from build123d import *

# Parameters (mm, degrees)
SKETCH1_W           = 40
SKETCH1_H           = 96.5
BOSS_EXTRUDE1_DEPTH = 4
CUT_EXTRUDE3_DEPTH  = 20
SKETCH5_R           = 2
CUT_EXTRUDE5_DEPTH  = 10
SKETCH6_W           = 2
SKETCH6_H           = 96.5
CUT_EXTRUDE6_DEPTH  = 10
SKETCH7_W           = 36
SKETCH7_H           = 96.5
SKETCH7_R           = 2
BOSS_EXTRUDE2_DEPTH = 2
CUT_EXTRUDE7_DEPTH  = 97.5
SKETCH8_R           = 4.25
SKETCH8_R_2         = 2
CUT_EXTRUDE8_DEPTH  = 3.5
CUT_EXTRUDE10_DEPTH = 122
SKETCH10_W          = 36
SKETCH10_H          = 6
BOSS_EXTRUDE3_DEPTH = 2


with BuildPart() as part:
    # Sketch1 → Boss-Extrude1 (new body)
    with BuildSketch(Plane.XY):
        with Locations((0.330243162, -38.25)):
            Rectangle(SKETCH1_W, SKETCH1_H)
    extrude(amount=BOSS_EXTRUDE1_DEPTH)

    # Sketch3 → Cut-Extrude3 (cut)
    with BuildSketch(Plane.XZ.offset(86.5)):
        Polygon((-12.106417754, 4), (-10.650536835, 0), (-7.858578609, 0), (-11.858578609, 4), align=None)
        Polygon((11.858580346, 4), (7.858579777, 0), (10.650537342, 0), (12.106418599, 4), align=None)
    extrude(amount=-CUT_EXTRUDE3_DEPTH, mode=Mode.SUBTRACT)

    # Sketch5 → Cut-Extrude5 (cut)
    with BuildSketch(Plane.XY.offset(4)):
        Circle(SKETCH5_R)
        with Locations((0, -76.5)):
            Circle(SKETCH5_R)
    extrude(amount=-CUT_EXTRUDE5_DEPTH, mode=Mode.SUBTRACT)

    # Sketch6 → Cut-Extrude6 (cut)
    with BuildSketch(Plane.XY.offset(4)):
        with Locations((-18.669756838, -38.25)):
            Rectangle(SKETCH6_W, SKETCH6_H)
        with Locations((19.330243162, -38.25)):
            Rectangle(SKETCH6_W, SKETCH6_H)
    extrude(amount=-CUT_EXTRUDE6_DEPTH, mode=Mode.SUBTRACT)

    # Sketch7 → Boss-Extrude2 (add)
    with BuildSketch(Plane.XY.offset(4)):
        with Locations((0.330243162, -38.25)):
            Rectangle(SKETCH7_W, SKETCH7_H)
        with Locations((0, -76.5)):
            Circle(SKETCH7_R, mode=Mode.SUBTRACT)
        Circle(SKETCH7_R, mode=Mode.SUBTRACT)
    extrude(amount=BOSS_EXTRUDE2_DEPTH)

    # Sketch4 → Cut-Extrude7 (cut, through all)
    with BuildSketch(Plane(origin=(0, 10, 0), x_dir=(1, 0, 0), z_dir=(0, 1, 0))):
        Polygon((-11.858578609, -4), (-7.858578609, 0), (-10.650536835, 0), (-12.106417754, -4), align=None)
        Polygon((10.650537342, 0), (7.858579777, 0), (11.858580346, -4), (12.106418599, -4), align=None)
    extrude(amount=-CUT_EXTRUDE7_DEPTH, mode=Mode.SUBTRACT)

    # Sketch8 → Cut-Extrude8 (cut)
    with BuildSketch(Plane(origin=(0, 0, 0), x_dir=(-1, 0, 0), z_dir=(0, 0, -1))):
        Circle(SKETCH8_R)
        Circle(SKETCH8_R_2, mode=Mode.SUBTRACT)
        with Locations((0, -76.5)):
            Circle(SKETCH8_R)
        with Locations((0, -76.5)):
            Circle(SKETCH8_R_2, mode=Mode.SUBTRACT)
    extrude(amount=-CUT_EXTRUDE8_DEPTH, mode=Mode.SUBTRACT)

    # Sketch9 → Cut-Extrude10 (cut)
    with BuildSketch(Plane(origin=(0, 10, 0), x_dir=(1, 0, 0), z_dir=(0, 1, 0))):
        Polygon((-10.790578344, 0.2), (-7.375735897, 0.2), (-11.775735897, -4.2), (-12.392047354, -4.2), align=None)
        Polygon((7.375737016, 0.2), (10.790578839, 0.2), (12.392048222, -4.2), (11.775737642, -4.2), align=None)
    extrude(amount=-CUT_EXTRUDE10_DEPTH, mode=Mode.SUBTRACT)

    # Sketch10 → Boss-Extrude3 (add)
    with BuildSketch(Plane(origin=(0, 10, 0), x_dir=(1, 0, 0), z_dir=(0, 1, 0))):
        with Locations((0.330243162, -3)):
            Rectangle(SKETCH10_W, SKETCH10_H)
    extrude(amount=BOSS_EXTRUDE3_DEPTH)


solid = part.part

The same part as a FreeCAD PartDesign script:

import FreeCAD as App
import Part
import Sketcher

V = App.Vector
Q = App.Units.Quantity

doc = App.newDocument("Part")
body = doc.addObject("PartDesign::Body", "Body")

# Sketch on XY plane
sketch1 = doc.addObject("Sketcher::SketchObject", "Sketch")
body.addObject(sketch1)
sketch1.AttachmentSupport = (doc.XY_Plane, [""])
sketch1.MapMode = "FlatFace"
sketch1.addGeometry([
    Part.LineSegment(V(-19.669757, 10, 0), V(-19.669757, -86.5, 0)),
    Part.LineSegment(V(-19.669757, -86.5, 0), V(20.330243, -86.5, 0)),
    Part.LineSegment(V(20.330243, -86.5, 0), V(20.330243, 10, 0)),
    Part.LineSegment(V(20.330243, 10, 0), V(-19.669757, 10, 0)),
], False)
sketch1.addConstraint([
    Sketcher.Constraint("Coincident", 0, 2, 1, 1),
    Sketcher.Constraint("Coincident", 1, 2, 2, 1),
    Sketcher.Constraint("Coincident", 2, 2, 3, 1),
    Sketcher.Constraint("Coincident", 3, 2, 0, 1),
    Sketcher.Constraint("Vertical", 0),
    Sketcher.Constraint("Horizontal", 1),
    Sketcher.Constraint("Vertical", 2),
    Sketcher.Constraint("Horizontal", 3),
    Sketcher.Constraint("DistanceX", 1, 1, 1, 2, Q("40 mm")),
    Sketcher.Constraint("DistanceY", 0, 2, 0, 1, Q("96.5 mm")),
    Sketcher.Constraint("DistanceY", -1, 1, 2, 2, Q("10 mm")),
    Sketcher.Constraint("DistanceX", 0, 2, -1, 1, Q("19.669757 mm")),
])
pad1 = doc.addObject("PartDesign::Pad", "Pad")
body.addObject(pad1)
pad1.Profile = sketch1
pad1.Length = 4

# Sketch on XZ plane
sketch2 = doc.addObject("Sketcher::SketchObject", "Sketch001")
body.addObject(sketch2)
sketch2.AttachmentSupport = (doc.XZ_Plane, [""])
sketch2.MapMode = "FlatFace"
sketch2.AttachmentOffset = App.Placement(V(0, 0, 86.5), App.Rotation())
sketch2.addGeometry([
    Part.LineSegment(V(-12.106418, 4, 0), V(-10.650537, 0, 0)),  # 0
    Part.LineSegment(V(-10.650537, 0, 0), V(-7.858579, 0, 0)),  # 1
    Part.LineSegment(V(-7.858579, 0, 0), V(-11.858579, 4, 0)),  # 2
    Part.LineSegment(V(-11.858579, 4, 0), V(-12.106418, 4, 0)),  # 3
    Part.LineSegment(V(11.85858, 4, 0), V(7.85858, 0, 0)),  # 4
    Part.LineSegment(V(7.85858, 0, 0), V(10.650537, 0, 0)),  # 5
    Part.LineSegment(V(10.650537, 0, 0), V(12.106419, 4, 0)),  # 6
    Part.LineSegment(V(12.106419, 4, 0), V(11.85858, 4, 0)),  # 7
], False)
sketch2.addConstraint([
    Sketcher.Constraint("Coincident", 0, 2, 1, 1),
    Sketcher.Constraint("Coincident", 1, 2, 2, 1),
    Sketcher.Constraint("Coincident", 2, 2, 3, 1),
    Sketcher.Constraint("Coincident", 3, 2, 0, 1),
    Sketcher.Constraint("Coincident", 4, 2, 5, 1),
    Sketcher.Constraint("Coincident", 5, 2, 6, 1),
    Sketcher.Constraint("Coincident", 6, 2, 7, 1),
    Sketcher.Constraint("Coincident", 7, 2, 4, 1),
    Sketcher.Constraint("Horizontal", 1),
    Sketcher.Constraint("Horizontal", 3),
    Sketcher.Constraint("Horizontal", 5),
    Sketcher.Constraint("Horizontal", 7),
    Sketcher.Constraint("Symmetric", 1, 2, 4, 2, -1, 1),
    Sketcher.Constraint("Symmetric", 0, 2, 5, 2, -2),
    Sketcher.Constraint("Symmetric", 3, 2, 6, 2, -2),
    Sketcher.Constraint("Perpendicular", 2, 4),
    Sketcher.Constraint("Equal", 3, 7),
    Sketcher.Constraint("Angle", 0, Q("-70 deg")),
    Sketcher.Constraint("DistanceY", -1, 1, 2, 2, Q("4 mm")),
    Sketcher.Constraint("DistanceX", 1, 1, 1, 2, Q("2.791958 mm")),
    Sketcher.Constraint("DistanceX", 1, 2, -1, 1, Q("7.858579 mm")),
])
pocket1 = doc.addObject("PartDesign::Pocket", "Pocket")
body.addObject(pocket1)
pocket1.Profile = sketch2
pocket1.Length = 20

# Sketch on XY plane
sketch3 = doc.addObject("Sketcher::SketchObject", "Sketch002")
body.addObject(sketch3)
sketch3.AttachmentSupport = (doc.XY_Plane, [""])
sketch3.MapMode = "FlatFace"
sketch3.AttachmentOffset = App.Placement(V(0, 0, 4), App.Rotation())
sketch3.addGeometry([
    Part.Circle(V(0, 0, 0), V(0, 0, 1), 2),
    Part.Circle(V(0, -76.5, 0), V(0, 0, 1), 2),
], False)
sketch3.addConstraint([
    Sketcher.Constraint("Coincident", 0, 3, -1, 1),
    Sketcher.Constraint("Equal", 0, 1),
    Sketcher.Constraint("PointOnObject", 1, 3, -2),
    Sketcher.Constraint("Diameter", 0, Q("4 mm")),
    Sketcher.Constraint("DistanceY", 1, 3, -1, 1, Q("76.5 mm")),
])
pocket2 = doc.addObject("PartDesign::Pocket", "Pocket001")
body.addObject(pocket2)
pocket2.Profile = sketch3
pocket2.Length = 10

# Sketch on XY plane
sketch4 = doc.addObject("Sketcher::SketchObject", "Sketch003")
body.addObject(sketch4)
sketch4.AttachmentSupport = (doc.XY_Plane, [""])
sketch4.MapMode = "FlatFace"
sketch4.AttachmentOffset = App.Placement(V(0, 0, 4), App.Rotation())
sketch4.addGeometry([
    Part.LineSegment(V(-19.669757, 10, 0), V(-19.669757, -86.5, 0)),  # 0
    Part.LineSegment(V(-19.669757, -86.5, 0), V(-17.669757, -86.5, 0)),  # 1
    Part.LineSegment(V(-17.669757, -86.5, 0), V(-17.669757, 10, 0)),  # 2
    Part.LineSegment(V(-17.669757, 10, 0), V(-19.669757, 10, 0)),  # 3
    Part.LineSegment(V(18.330243, 10, 0), V(18.330243, -86.5, 0)),  # 4
    Part.LineSegment(V(18.330243, -86.5, 0), V(20.330243, -86.5, 0)),  # 5
    Part.LineSegment(V(20.330243, -86.5, 0), V(20.330243, 10, 0)),  # 6
    Part.LineSegment(V(20.330243, 10, 0), V(18.330243, 10, 0)),  # 7
], False)
sketch4.addConstraint([
    Sketcher.Constraint("Coincident", 0, 2, 1, 1),
    Sketcher.Constraint("Coincident", 1, 2, 2, 1),
    Sketcher.Constraint("Coincident", 2, 2, 3, 1),
    Sketcher.Constraint("Coincident", 3, 2, 0, 1),
    Sketcher.Constraint("Coincident", 4, 2, 5, 1),
    Sketcher.Constraint("Coincident", 5, 2, 6, 1),
    Sketcher.Constraint("Coincident", 6, 2, 7, 1),
    Sketcher.Constraint("Coincident", 7, 2, 4, 1),
    Sketcher.Constraint("Vertical", 0),
    Sketcher.Constraint("Horizontal", 1),
    Sketcher.Constraint("Vertical", 2),
    Sketcher.Constraint("Horizontal", 3),
    Sketcher.Constraint("Vertical", 4),
    Sketcher.Constraint("Horizontal", 5),
    Sketcher.Constraint("Vertical", 6),
    Sketcher.Constraint("Horizontal", 7),
    Sketcher.Constraint("Horizontal", 1, 2, 4, 2),
    Sketcher.Constraint("Horizontal", 3, 2, 6, 2),
    Sketcher.Constraint("Equal", 3, 5),
    Sketcher.Constraint("DistanceX", 1, 1, 1, 2, Q("2 mm")),
    Sketcher.Constraint("DistanceY", 0, 2, 0, 1, Q("96.5 mm")),
    Sketcher.Constraint("DistanceY", -1, 1, 2, 2, Q("10 mm")),
    Sketcher.Constraint("DistanceX", 1, 2, 4, 2, Q("36 mm")),
    Sketcher.Constraint("DistanceX", 0, 2, -1, 1, Q("19.669757 mm")),
])
pocket3 = doc.addObject("PartDesign::Pocket", "Pocket002")
body.addObject(pocket3)
pocket3.Profile = sketch4
pocket3.Length = 10

# Sketch on XY plane
sketch5 = doc.addObject("Sketcher::SketchObject", "Sketch004")
body.addObject(sketch5)
sketch5.AttachmentSupport = (doc.XY_Plane, [""])
sketch5.MapMode = "FlatFace"
sketch5.AttachmentOffset = App.Placement(V(0, 0, 4), App.Rotation())
sketch5.addGeometry([
    Part.LineSegment(V(-17.669757, 10, 0), V(-17.669757, -86.5, 0)),  # 0
    Part.LineSegment(V(-17.669757, -86.5, 0), V(18.330243, -86.5, 0)),  # 1
    Part.LineSegment(V(18.330243, -86.5, 0), V(18.330243, 10, 0)),  # 2
    Part.LineSegment(V(18.330243, 10, 0), V(-17.669757, 10, 0)),  # 3
    Part.Circle(V(0, -76.5, 0), V(0, 0, 1), 2),  # 4
    Part.Circle(V(0, 0, 0), V(0, 0, 1), 2),  # 5
], False)
sketch5.addConstraint([
    Sketcher.Constraint("Coincident", 0, 2, 1, 1),
    Sketcher.Constraint("Coincident", 1, 2, 2, 1),
    Sketcher.Constraint("Coincident", 2, 2, 3, 1),
    Sketcher.Constraint("Coincident", 3, 2, 0, 1),
    Sketcher.Constraint("Vertical", 0),
    Sketcher.Constraint("Horizontal", 1),
    Sketcher.Constraint("Vertical", 2),
    Sketcher.Constraint("Horizontal", 3),
    Sketcher.Constraint("Coincident", 5, 3, -1, 1),
    Sketcher.Constraint("Equal", 4, 5),
    Sketcher.Constraint("PointOnObject", 4, 3, -2),
    Sketcher.Constraint("Diameter", 4, Q("4 mm")),
    Sketcher.Constraint("DistanceX", 1, 1, 1, 2, Q("36 mm")),
    Sketcher.Constraint("DistanceY", 0, 2, 0, 1, Q("96.5 mm")),
    Sketcher.Constraint("DistanceY", -1, 1, 2, 2, Q("10 mm")),
    Sketcher.Constraint("DistanceY", 0, 2, 4, 3, Q("10 mm")),
    Sketcher.Constraint("DistanceX", 0, 2, -1, 1, Q("17.669757 mm")),
])
pad2 = doc.addObject("PartDesign::Pad", "Pad001")
body.addObject(pad2)
pad2.Profile = sketch5
pad2.Length = 2

# Sketch on XZ plane
sketch6 = doc.addObject("Sketcher::SketchObject", "Sketch005")
body.addObject(sketch6)
sketch6.AttachmentSupport = (doc.XZ_Plane, [""])
sketch6.MapMode = "FlatFace"
sketch6.AttachmentOffset = App.Placement(V(0, 0, -10), App.Rotation())
sketch6.addGeometry([
    Part.LineSegment(V(-11.858579, 4, 0), V(-7.858579, 0, 0)),  # 0
    Part.LineSegment(V(-7.858579, 0, 0), V(-10.650537, 0, 0)),  # 1
    Part.LineSegment(V(-10.650537, 0, 0), V(-12.106418, 4, 0)),  # 2
    Part.LineSegment(V(-12.106418, 4, 0), V(-11.858579, 4, 0)),  # 3
    Part.LineSegment(V(10.650537, 0, 0), V(7.85858, 0, 0)),  # 4
    Part.LineSegment(V(7.85858, 0, 0), V(11.85858, 4, 0)),  # 5
    Part.LineSegment(V(11.85858, 4, 0), V(12.106419, 4, 0)),  # 6
    Part.LineSegment(V(12.106419, 4, 0), V(10.650537, 0, 0)),  # 7
], False)
sketch6.addConstraint([
    Sketcher.Constraint("Coincident", 0, 2, 1, 1),
    Sketcher.Constraint("Coincident", 1, 2, 2, 1),
    Sketcher.Constraint("Coincident", 2, 2, 3, 1),
    Sketcher.Constraint("Coincident", 3, 2, 0, 1),
    Sketcher.Constraint("Coincident", 4, 2, 5, 1),
    Sketcher.Constraint("Coincident", 5, 2, 6, 1),
    Sketcher.Constraint("Coincident", 6, 2, 7, 1),
    Sketcher.Constraint("Coincident", 7, 2, 4, 1),
    Sketcher.Constraint("Horizontal", 1),
    Sketcher.Constraint("Horizontal", 3),
    Sketcher.Constraint("Horizontal", 4),
    Sketcher.Constraint("Horizontal", 6),
    Sketcher.Constraint("Symmetric", 0, 2, 4, 2, -1, 1),
    Sketcher.Constraint("Symmetric", 3, 2, 5, 2, -2),
    Sketcher.Constraint("Symmetric", 1, 2, 7, 2, -2),
    Sketcher.Constraint("Perpendicular", 0, 5),
    Sketcher.Constraint("Equal", 3, 6),
    Sketcher.Constraint("Angle", 2, Q("110 deg")),
    Sketcher.Constraint("DistanceY", -1, 1, 2, 2, Q("4 mm")),
    Sketcher.Constraint("DistanceX", 2, 2, 5, 2, Q("23.964998 mm")),
    Sketcher.Constraint("DistanceX", 1, 2, 1, 1, Q("2.791958 mm")),
])
pocket4 = doc.addObject("PartDesign::Pocket", "Pocket003")
body.addObject(pocket4)
pocket4.Profile = sketch6
pocket4.Type = "ThroughAll"
pocket4.Reversed = True

# Sketch on XY plane
sketch7 = doc.addObject("Sketcher::SketchObject", "Sketch006")
body.addObject(sketch7)
sketch7.AttachmentSupport = (doc.XY_Plane, [""])
sketch7.MapMode = "FlatFace"
sketch7.addGeometry([
    Part.Circle(V(0, 0, 0), V(0, 0, 1), 4.25),
    Part.Circle(V(0, 0, 0), V(0, 0, 1), 2),
    Part.Circle(V(0, -76.5, 0), V(0, 0, 1), 4.25),
    Part.Circle(V(0, -76.5, 0), V(0, 0, 1), 2),
], False)
sketch7.addConstraint([
    Sketcher.Constraint("Coincident", 0, 3, -1, 1),
    Sketcher.Constraint("Coincident", 1, 3, -1, 1),
    Sketcher.Constraint("Coincident", 3, 3, 2, 3),
    Sketcher.Constraint("Equal", 0, 2),
    Sketcher.Constraint("Equal", 1, 3),
    Sketcher.Constraint("PointOnObject", 2, 3, -2),
    Sketcher.Constraint("Diameter", 1, Q("4 mm")),
    Sketcher.Constraint("Diameter", 0, Q("8.5 mm")),
    Sketcher.Constraint("DistanceY", 2, 3, -1, 1, Q("76.5 mm")),
])
pocket5 = doc.addObject("PartDesign::Pocket", "Pocket004")
body.addObject(pocket5)
pocket5.Profile = sketch7
pocket5.Length = 3.5
pocket5.Reversed = True

# Sketch on XZ plane
sketch8 = doc.addObject("Sketcher::SketchObject", "Sketch007")
body.addObject(sketch8)
sketch8.AttachmentSupport = (doc.XZ_Plane, [""])
sketch8.MapMode = "FlatFace"
sketch8.AttachmentOffset = App.Placement(V(0, 0, -10), App.Rotation())
sketch8.addGeometry([
    Part.LineSegment(V(-7.375736, -0.2, 0), V(-10.790578, -0.2, 0)),  # 0
    Part.LineSegment(V(-10.790578, -0.2, 0), V(-12.392047, 4.2, 0)),  # 1
    Part.LineSegment(V(-12.392047, 4.2, 0), V(-11.775736, 4.2, 0)),  # 2
    Part.LineSegment(V(-11.775736, 4.2, 0), V(-7.375736, -0.2, 0)),  # 3
    Part.LineSegment(V(10.790579, -0.2, 0), V(7.375737, -0.2, 0)),  # 4
    Part.LineSegment(V(7.375737, -0.2, 0), V(11.775738, 4.2, 0)),  # 5
    Part.LineSegment(V(11.775738, 4.2, 0), V(12.392048, 4.2, 0)),  # 6
    Part.LineSegment(V(12.392048, 4.2, 0), V(10.790579, -0.2, 0)),  # 7
], False)
sketch8.addConstraint([
    Sketcher.Constraint("Coincident", 0, 2, 1, 1),
    Sketcher.Constraint("Coincident", 1, 2, 2, 1),
    Sketcher.Constraint("Coincident", 2, 2, 3, 1),
    Sketcher.Constraint("Coincident", 3, 2, 0, 1),
    Sketcher.Constraint("Coincident", 4, 2, 5, 1),
    Sketcher.Constraint("Coincident", 5, 2, 6, 1),
    Sketcher.Constraint("Coincident", 6, 2, 7, 1),
    Sketcher.Constraint("Coincident", 7, 2, 4, 1),
    Sketcher.Constraint("Horizontal", 0),
    Sketcher.Constraint("Horizontal", 2),
    Sketcher.Constraint("Horizontal", 4),
    Sketcher.Constraint("Horizontal", 6),
    Sketcher.Constraint("Symmetric", 3, 2, 4, 2, -2),
    Sketcher.Constraint("Symmetric", 2, 2, 5, 2, -2),
    Sketcher.Constraint("Perpendicular", 3, 5),
    Sketcher.Constraint("Equal", 0, 4),
    Sketcher.Constraint("Equal", 2, 6),
    Sketcher.Constraint("Angle", 1, Q("110 deg")),
    Sketcher.Constraint("DistanceY", 0, 2, -1, 1, Q("0.2 mm")),
    Sketcher.Constraint("DistanceY", -1, 1, 1, 2, Q("4.2 mm")),
    Sketcher.Constraint("DistanceX", 2, 1, 2, 2, Q("0.616311 mm")),
    Sketcher.Constraint("DistanceX", 0, 2, -1, 1, Q("10.790578 mm")),
])
pocket6 = doc.addObject("PartDesign::Pocket", "Pocket005")
body.addObject(pocket6)
pocket6.Profile = sketch8
pocket6.Length = 122
pocket6.Reversed = True

# Sketch on XZ plane
sketch9 = doc.addObject("Sketcher::SketchObject", "Sketch008")
body.addObject(sketch9)
sketch9.AttachmentSupport = (doc.XZ_Plane, [""])
sketch9.MapMode = "FlatFace"
sketch9.AttachmentOffset = App.Placement(V(0, 0, -10), App.Rotation())
sketch9.addGeometry([
    Part.LineSegment(V(-17.669757, 0, 0), V(-17.669757, 6, 0)),
    Part.LineSegment(V(-17.669757, 6, 0), V(18.330243, 6, 0)),
    Part.LineSegment(V(18.330243, 6, 0), V(18.330243, 0, 0)),
    Part.LineSegment(V(18.330243, 0, 0), V(-17.669757, 0, 0)),
], False)
sketch9.addConstraint([
    Sketcher.Constraint("Coincident", 0, 2, 1, 1),
    Sketcher.Constraint("Coincident", 1, 2, 2, 1),
    Sketcher.Constraint("Coincident", 2, 2, 3, 1),
    Sketcher.Constraint("Coincident", 3, 2, 0, 1),
    Sketcher.Constraint("Vertical", 0),
    Sketcher.Constraint("Horizontal", 1),
    Sketcher.Constraint("Vertical", 2),
    Sketcher.Constraint("Horizontal", 3),
    Sketcher.Constraint("PointOnObject", 2, 2, -1),
    Sketcher.Constraint("DistanceX", 1, 1, 1, 2, Q("36 mm")),
    Sketcher.Constraint("DistanceY", 0, 1, 0, 2, Q("6 mm")),
    Sketcher.Constraint("DistanceX", 0, 2, -1, 1, Q("17.669757 mm")),
])
pad3 = doc.addObject("PartDesign::Pad", "Pad002")
body.addObject(pad3)
pad3.Profile = sketch9
pad3.Length = 2
pad3.Reversed = True

doc.recompute()
